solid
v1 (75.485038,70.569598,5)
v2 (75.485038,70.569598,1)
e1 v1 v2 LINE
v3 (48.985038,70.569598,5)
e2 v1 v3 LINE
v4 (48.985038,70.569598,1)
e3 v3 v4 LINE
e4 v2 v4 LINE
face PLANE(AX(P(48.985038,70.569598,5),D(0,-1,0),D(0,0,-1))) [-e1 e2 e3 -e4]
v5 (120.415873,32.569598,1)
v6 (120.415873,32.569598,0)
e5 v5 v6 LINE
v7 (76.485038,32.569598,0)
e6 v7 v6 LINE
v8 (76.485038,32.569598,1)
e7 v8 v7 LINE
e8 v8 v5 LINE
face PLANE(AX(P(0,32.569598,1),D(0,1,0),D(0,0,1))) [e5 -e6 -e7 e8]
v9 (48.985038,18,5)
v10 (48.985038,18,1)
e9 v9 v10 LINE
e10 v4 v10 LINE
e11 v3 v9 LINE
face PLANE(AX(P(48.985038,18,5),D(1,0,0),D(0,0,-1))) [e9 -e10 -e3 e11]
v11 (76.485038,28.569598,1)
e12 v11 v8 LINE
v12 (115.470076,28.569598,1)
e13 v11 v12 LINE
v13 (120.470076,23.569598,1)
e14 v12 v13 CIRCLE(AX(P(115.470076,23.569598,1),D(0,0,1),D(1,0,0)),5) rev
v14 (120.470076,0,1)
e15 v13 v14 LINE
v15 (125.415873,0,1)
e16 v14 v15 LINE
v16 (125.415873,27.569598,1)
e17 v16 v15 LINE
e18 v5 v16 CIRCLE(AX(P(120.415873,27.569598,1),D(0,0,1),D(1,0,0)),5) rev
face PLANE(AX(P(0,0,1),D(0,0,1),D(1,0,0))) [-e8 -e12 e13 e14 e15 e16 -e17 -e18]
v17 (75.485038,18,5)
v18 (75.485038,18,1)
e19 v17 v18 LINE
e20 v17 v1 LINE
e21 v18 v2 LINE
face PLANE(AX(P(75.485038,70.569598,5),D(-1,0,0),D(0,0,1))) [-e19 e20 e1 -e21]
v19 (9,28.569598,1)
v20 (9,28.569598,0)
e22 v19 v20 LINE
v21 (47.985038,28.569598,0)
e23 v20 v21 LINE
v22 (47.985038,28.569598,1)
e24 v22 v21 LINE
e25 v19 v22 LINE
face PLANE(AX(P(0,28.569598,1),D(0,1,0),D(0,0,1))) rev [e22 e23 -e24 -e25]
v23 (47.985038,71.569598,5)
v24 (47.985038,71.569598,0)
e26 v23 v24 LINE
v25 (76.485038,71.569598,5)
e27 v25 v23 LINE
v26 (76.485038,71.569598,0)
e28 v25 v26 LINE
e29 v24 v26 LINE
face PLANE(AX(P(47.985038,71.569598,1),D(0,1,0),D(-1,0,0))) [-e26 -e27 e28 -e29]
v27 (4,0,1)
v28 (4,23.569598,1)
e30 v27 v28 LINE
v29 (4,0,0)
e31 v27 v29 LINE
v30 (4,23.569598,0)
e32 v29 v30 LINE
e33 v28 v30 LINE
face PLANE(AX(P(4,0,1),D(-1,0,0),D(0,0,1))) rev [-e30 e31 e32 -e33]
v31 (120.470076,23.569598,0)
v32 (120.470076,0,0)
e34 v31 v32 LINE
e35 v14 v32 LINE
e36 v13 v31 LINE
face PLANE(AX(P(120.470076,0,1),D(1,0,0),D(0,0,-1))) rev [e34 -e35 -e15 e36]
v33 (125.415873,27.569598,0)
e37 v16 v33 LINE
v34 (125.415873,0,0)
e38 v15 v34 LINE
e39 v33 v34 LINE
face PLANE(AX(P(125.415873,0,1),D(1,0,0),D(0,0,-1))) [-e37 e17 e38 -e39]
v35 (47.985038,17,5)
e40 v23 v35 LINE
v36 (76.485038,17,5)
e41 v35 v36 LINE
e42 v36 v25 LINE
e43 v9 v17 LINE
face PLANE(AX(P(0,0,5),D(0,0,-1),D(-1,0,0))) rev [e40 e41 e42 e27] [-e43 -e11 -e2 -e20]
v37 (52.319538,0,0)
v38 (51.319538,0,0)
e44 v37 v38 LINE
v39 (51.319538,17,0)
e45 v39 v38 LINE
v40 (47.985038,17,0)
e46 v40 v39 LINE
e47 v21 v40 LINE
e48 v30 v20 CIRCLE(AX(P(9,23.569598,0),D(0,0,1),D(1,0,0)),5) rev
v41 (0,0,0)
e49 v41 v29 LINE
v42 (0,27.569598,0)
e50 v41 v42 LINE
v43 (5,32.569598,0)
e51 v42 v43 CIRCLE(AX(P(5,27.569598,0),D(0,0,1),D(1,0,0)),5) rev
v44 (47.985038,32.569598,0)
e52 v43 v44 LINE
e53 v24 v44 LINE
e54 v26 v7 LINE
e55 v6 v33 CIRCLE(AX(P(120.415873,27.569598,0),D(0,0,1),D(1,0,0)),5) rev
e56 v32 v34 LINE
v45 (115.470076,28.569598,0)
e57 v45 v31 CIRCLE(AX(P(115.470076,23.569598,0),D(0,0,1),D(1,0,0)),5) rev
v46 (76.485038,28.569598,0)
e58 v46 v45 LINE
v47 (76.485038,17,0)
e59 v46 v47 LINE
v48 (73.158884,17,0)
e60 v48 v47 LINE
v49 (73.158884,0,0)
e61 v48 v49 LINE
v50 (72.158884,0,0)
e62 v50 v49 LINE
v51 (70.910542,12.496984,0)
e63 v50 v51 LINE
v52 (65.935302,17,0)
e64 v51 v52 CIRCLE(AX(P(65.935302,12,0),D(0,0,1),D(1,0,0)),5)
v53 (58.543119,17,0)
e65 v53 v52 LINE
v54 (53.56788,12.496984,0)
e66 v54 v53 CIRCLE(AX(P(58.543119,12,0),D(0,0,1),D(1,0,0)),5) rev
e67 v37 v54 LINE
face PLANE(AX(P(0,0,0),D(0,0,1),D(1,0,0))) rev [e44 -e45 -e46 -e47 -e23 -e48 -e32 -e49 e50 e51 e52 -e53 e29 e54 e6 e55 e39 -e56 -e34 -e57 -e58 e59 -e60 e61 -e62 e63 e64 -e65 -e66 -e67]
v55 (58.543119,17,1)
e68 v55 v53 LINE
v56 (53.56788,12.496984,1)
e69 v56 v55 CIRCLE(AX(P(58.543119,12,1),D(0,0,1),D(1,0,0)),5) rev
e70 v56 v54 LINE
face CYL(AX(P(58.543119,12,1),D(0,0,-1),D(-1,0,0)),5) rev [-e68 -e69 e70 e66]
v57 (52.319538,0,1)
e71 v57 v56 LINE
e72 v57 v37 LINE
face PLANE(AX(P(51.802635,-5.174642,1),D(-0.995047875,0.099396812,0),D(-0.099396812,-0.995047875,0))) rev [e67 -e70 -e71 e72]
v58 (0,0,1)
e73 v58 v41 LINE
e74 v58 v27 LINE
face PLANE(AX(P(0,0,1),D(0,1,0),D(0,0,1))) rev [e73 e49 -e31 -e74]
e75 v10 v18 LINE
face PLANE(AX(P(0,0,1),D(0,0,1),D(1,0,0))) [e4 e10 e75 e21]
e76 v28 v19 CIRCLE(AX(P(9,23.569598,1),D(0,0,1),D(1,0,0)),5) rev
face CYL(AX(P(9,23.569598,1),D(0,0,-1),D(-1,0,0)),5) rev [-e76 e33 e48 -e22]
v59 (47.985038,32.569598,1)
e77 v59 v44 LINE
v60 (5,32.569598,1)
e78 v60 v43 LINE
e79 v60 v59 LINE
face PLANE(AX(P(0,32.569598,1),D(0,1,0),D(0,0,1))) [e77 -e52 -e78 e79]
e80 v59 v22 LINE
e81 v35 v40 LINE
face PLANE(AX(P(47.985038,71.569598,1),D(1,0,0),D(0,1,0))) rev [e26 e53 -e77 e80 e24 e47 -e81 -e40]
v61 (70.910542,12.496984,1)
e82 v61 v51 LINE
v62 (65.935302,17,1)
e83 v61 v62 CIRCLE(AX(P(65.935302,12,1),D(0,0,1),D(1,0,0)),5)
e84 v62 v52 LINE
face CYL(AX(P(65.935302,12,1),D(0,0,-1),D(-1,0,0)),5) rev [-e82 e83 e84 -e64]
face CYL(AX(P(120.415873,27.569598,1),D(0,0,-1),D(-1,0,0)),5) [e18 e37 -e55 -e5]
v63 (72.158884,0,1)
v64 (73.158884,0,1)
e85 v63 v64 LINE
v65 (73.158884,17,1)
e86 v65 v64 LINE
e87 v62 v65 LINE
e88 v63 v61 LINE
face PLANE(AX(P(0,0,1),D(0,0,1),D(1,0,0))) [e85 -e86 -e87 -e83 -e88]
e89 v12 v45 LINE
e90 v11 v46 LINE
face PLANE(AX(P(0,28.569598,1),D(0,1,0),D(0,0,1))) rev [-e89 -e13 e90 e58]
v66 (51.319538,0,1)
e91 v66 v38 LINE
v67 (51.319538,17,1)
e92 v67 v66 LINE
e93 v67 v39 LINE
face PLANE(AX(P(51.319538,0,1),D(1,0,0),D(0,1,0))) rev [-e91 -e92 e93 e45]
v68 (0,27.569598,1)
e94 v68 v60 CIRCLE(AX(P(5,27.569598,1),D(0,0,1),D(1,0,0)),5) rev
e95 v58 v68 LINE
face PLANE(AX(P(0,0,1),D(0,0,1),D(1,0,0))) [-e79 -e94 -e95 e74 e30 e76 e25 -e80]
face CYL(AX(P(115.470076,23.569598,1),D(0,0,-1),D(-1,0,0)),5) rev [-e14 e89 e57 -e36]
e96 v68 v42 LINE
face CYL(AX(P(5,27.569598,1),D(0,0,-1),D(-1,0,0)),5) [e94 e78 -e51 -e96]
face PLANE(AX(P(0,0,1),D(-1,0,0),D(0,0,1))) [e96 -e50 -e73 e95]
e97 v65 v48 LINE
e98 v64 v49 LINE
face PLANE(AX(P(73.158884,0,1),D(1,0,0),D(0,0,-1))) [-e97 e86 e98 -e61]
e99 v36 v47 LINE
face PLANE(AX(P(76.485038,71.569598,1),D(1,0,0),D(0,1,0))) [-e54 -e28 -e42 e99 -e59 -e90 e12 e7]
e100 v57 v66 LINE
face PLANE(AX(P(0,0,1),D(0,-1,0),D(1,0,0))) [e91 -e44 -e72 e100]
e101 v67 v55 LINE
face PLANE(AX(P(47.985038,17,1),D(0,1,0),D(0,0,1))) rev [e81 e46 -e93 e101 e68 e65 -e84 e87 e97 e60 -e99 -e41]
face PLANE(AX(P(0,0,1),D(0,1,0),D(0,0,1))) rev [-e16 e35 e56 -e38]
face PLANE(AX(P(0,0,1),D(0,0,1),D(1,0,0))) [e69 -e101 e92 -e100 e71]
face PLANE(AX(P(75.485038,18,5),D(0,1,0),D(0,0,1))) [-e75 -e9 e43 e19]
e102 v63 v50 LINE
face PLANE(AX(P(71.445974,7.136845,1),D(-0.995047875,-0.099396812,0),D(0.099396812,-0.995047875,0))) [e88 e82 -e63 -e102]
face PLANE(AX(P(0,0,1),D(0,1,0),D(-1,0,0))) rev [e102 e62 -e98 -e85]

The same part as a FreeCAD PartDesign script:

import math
import FreeCAD as App
import Part
import Sketcher

V = App.Vector

doc = App.newDocument("Part")
body = doc.addObject("PartDesign::Body", "Body")

# Sketch on XY plane
sketch1 = body.newObject("Sketcher::SketchObject", "Sketch")
sketch1.AttachmentSupport = (doc.getObject("XY_Plane"), [""])
sketch1.MapMode = "FlatFace"
sketch1.addGeometry(Part.LineSegment(V(0, 27.6, 0), V(0, 0, 0)), False)
sketch1.addGeometry(Part.LineSegment(V(0, 0, 0), V(4, 0, 0)), False)
sketch1.addGeometry(Part.LineSegment(V(4, 0, 0), V(4, 23.6, 0)), False)
sketch1.addGeometry(Part.ArcOfCircle(Part.Circle(V(9, 23.6, 0), V(0, 0, 1), 5), math.radians(90), math.radians(180)), False)
sketch1.addGeometry(Part.LineSegment(V(9, 28.6, 0), V(48, 28.6, 0)), False)
sketch1.addGeometry(Part.LineSegment(V(48, 28.6, 0), V(48, 17, 0)), False)
sketch1.addGeometry(Part.LineSegment(V(48, 17, 0), V(51.3, 17, 0)), False)
sketch1.addGeometry(Part.LineSegment(V(51.3, 17, 0), V(51.3, 0, 0)), False)
sketch1.addGeometry(Part.LineSegment(V(51.3, 0, 0), V(52.3, 0, 0)), False)
sketch1.addGeometry(Part.LineSegment(V(52.3, 0, 0), V(53.6, 12.5, 0)), False)
sketch1.addGeometry(Part.ArcOfCircle(Part.Circle(V(58.5, 12, 0), V(0, 0, 1), 5), math.radians(90), math.radians(174)), False)
sketch1.addGeometry(Part.LineSegment(V(58.5, 17, 0), V(65.9, 17, 0)), False)
sketch1.addGeometry(Part.ArcOfCircle(Part.Circle(V(65.9, 12, 0), V(0, 0, 1), 5), math.radians(6), math.radians(90)), False)
sketch1.addGeometry(Part.LineSegment(V(70.9, 12.5, 0), V(72.2, 0, 0)), False)
sketch1.addGeometry(Part.LineSegment(V(72.2, 0, 0), V(73.2, 0, 0)), False)
sketch1.addGeometry(Part.LineSegment(V(73.2, 0, 0), V(73.2, 17, 0)), False)
sketch1.addGeometry(Part.LineSegment(V(73.2, 17, 0), V(76.5, 17, 0)), False)
sketch1.addGeometry(Part.LineSegment(V(76.5, 17, 0), V(76.5, 28.6, 0)), False)
sketch1.addGeometry(Part.LineSegment(V(76.5, 28.6, 0), V(115.5, 28.6, 0)), False)
sketch1.addGeometry(Part.ArcOfCircle(Part.Circle(V(115.5, 23.6, 0), V(0, 0, 1), 5), math.radians(0), math.radians(90)), False)
sketch1.addGeometry(Part.LineSegment(V(120.5, 23.6, 0), V(120.5, 0, 0)), False)
sketch1.addGeometry(Part.LineSegment(V(120.5, 0, 0), V(125.4, 0, 0)), False)
sketch1.addGeometry(Part.LineSegment(V(125.4, 0, 0), V(125.4, 27.6, 0)), False)
sketch1.addGeometry(Part.ArcOfCircle(Part.Circle(V(120.4, 27.6, 0), V(0, 0, 1), 5), math.radians(0), math.radians(90)), False)
sketch1.addGeometry(Part.LineSegment(V(120.4, 32.6, 0), V(76.5, 32.6, 0)), False)
sketch1.addGeometry(Part.LineSegment(V(76.5, 32.6, 0), V(76.5, 71.6, 0)), False)
sketch1.addGeometry(Part.LineSegment(V(76.5, 71.6, 0), V(48, 71.6, 0)), False)
sketch1.addGeometry(Part.LineSegment(V(48, 71.6, 0), V(48, 32.6, 0)), False)
sketch1.addGeometry(Part.LineSegment(V(48, 32.6, 0), V(5, 32.6, 0)), False)
sketch1.addGeometry(Part.ArcOfCircle(Part.Circle(V(5, 27.6, 0), V(0, 0, 1), 5), math.radians(90), math.radians(180)), False)
sketch1.addConstraint(Sketcher.Constraint("Coincident", 0, 2, 1, 1))
sketch1.addConstraint(Sketcher.Constraint("Coincident", 1, 2, 2, 1))
sketch1.addConstraint(Sketcher.Constraint("Tangent", 2, 2, 3, 2))
sketch1.addConstraint(Sketcher.Constraint("Tangent", 3, 1, 4, 1))
sketch1.addConstraint(Sketcher.Constraint("Coincident", 4, 2, 5, 1))
sketch1.addConstraint(Sketcher.Constraint("Coincident", 5, 2, 6, 1))
sketch1.addConstraint(Sketcher.Constraint("Coincident", 6, 2, 7, 1))
sketch1.addConstraint(Sketcher.Constraint("Coincident", 7, 2, 8, 1))
sketch1.addConstraint(Sketcher.Constraint("Coincident", 8, 2, 9, 1))
sketch1.addConstraint(Sketcher.Constraint("Tangent", 9, 2, 10, 2))
sketch1.addConstraint(Sketcher.Constraint("Tangent", 10, 1, 11, 1))
sketch1.addConstraint(Sketcher.Constraint("Tangent", 11, 2, 12, 2))
sketch1.addConstraint(Sketcher.Constraint("Tangent", 12, 1, 13, 1))
sketch1.addConstraint(Sketcher.Constraint("Coincident", 13, 2, 14, 1))
sketch1.addConstraint(Sketcher.Constraint("Coincident", 14, 2, 15, 1))
sketch1.addConstraint(Sketcher.Constraint("Coincident", 15, 2, 16, 1))
sketch1.addConstraint(Sketcher.Constraint("Coincident", 16, 2, 17, 1))
sketch1.addConstraint(Sketcher.Constraint("Coincident", 17, 2, 18, 1))
sketch1.addConstraint(Sketcher.Constraint("Tangent", 18, 2, 19, 2))
sketch1.addConstraint(Sketcher.Constraint("Tangent", 19, 1, 20, 1))
sketch1.addConstraint(Sketcher.Constraint("Coincident", 20, 2, 21, 1))
sketch1.addConstraint(Sketcher.Constraint("Coincident", 21, 2, 22, 1))
sketch1.addConstraint(Sketcher.Constraint("Tangent", 22, 2, 23, 1))
sketch1.addConstraint(Sketcher.Constraint("Tangent", 23, 2, 24, 1))
sketch1.addConstraint(Sketcher.Constraint("Coincident", 24, 2, 25, 1))
sketch1.addConstraint(Sketcher.Constraint("Coincident", 25, 2, 26, 1))
sketch1.addConstraint(Sketcher.Constraint("Coincident", 26, 2, 27, 1))
sketch1.addConstraint(Sketcher.Constraint("Coincident", 27, 2, 28, 1))
sketch1.addConstraint(Sketcher.Constraint("Tangent", 28, 2, 29, 1))
sketch1.addConstraint(Sketcher.Constraint("Tangent", 29, 2, 0, 1))
sketch1.addConstraint(Sketcher.Constraint("Vertical", 0))
sketch1.addConstraint(Sketcher.Constraint("Horizontal", 1))
sketch1.addConstraint(Sketcher.Constraint("Vertical", 2))
sketch1.addConstraint(Sketcher.Constraint("Horizontal", 4))
sketch1.addConstraint(Sketcher.Constraint("Vertical", 5))
sketch1.addConstraint(Sketcher.Constraint("Horizontal", 6))
sketch1.addConstraint(Sketcher.Constraint("Vertical", 7))
sketch1.addConstraint(Sketcher.Constraint("Horizontal", 8))
sketch1.addConstraint(Sketcher.Constraint("Horizontal", 11))
sketch1.addConstraint(Sketcher.Constraint("Horizontal", 14))
sketch1.addConstraint(Sketcher.Constraint("Vertical", 15))
sketch1.addConstraint(Sketcher.Constraint("Horizontal", 16))
sketch1.addConstraint(Sketcher.Constraint("Vertical", 17))
sketch1.addConstraint(Sketcher.Constraint("Horizontal", 18))
sketch1.addConstraint(Sketcher.Constraint("Vertical", 20))
sketch1.addConstraint(Sketcher.Constraint("Horizontal", 21))
sketch1.addConstraint(Sketcher.Constraint("Vertical", 22))
sketch1.addConstraint(Sketcher.Constraint("Horizontal", 24))
sketch1.addConstraint(Sketcher.Constraint("Vertical", 25))
sketch1.addConstraint(Sketcher.Constraint("Horizontal", 26))
sketch1.addConstraint(Sketcher.Constraint("Vertical", 27))
sketch1.addConstraint(Sketcher.Constraint("Horizontal", 28))
sketch1.addConstraint(Sketcher.Constraint("Coincident", 0, 2, -1, 1))
sketch1.addConstraint(Sketcher.Constraint("Equal", 3, 10))
sketch1.addConstraint(Sketcher.Constraint("Equal", 10, 12))
sketch1.addConstraint(Sketcher.Constraint("Equal", 12, 19))
sketch1.addConstraint(Sketcher.Constraint("Equal", 19, 23))
sketch1.addConstraint(Sketcher.Constraint("Equal", 23, 29))
sketch1.addConstraint(Sketcher.Constraint("PointOnObject", 7, 2, -1))
sketch1.addConstraint(Sketcher.Constraint("PointOnObject", 13, 2, -1))
sketch1.addConstraint(Sketcher.Constraint("PointOnObject", 20, 2, -1))
sketch1.addConstraint(Sketcher.Constraint("Horizontal", 3, 3, 19, 3))
sketch1.addConstraint(Sketcher.Constraint("Horizontal", 23, 3, 29, 3))
sketch1.addConstraint(Sketcher.Constraint("Horizontal", 6, 2, 10, 1))
sketch1.addConstraint(Sketcher.Constraint("Horizontal", 9, 2, 12, 1))
sketch1.addConstraint(Sketcher.Constraint("Horizontal", 11, 2, 15, 2))
sketch1.addConstraint(Sketcher.Constraint("Vertical", 17, 2, 24, 2))
sketch1.addConstraint(Sketcher.Constraint("Vertical", 5, 2, 26, 2))
sketch1.addConstraint(Sketcher.Constraint("Equal", 8, 14))
sketch1.addConstraint(Sketcher.Constraint("Equal", 4, 18))
sketch1.addConstraint(Sketcher.Constraint("Radius", 3, 5.0))
sketch1.addConstraint(Sketcher.Constraint("DistanceX", 1, 1, 1, 2, 4.0))
sketch1.addConstraint(Sketcher.Constraint("DistanceX", 8, 1, 8, 2, 1.0))
sketch1.addConstraint(Sketcher.Constraint("DistanceY", 7, 2, 7, 1, 17.0))
sketch1.addConstraint(Sketcher.Constraint("DistanceY", 25, 1, 25, 2, 39.0))
sketch1.addConstraint(Sketcher.Constraint("DistanceX", 26, 2, 26, 1, 28.5))
sketch1.addConstraint(Sketcher.Constraint("DistanceY", 19, 3, 23, 3, 4.0))
sketch1.addConstraint(Sketcher.Constraint("DistanceX", 6, 1, 6, 2, 3.334499))
sketch1.addConstraint(Sketcher.Constraint("DistanceX", 4, 1, 4, 2, 38.985038))
sketch1.addConstraint(Sketcher.Constraint("Distance", 9, 12.559179))
sketch1.addConstraint(Sketcher.Constraint("DistanceX", 11, 1, 11, 2, 7.392183))
sketch1.addConstraint(Sketcher.Constraint("DistanceX", 21, 1, 21, 2, 4.945797))
sketch1.addConstraint(Sketcher.Constraint("DistanceY", 0, 2, 0, 1, 27.569598))
pad1 = body.newObject("PartDesign::Pad", "Pad")
pad1.Profile = sketch1
pad1.Length = 1

# Sketch on XY plane
sketch2 = body.newObject("Sketcher::SketchObject", "Sketch001")
sketch2.AttachmentSupport = (doc.getObject("XY_Plane"), [""])
sketch2.MapMode = "FlatFace"
sketch2.AttachmentOffset = App.Placement(V(0, 0, 1), App.Rotation())
sketch2.addGeometry(Part.LineSegment(V(48, 72, 0), V(48, 17, 0)), False)
sketch2.addGeometry(Part.LineSegment(V(48, 17, 0), V(76, 17, 0)), False)
sketch2.addGeometry(Part.LineSegment(V(76, 17, 0), V(76, 72, 0)), False)
sketch2.addGeometry(Part.LineSegment(V(76, 72, 0), V(48, 72, 0)), False)
sketch2.addGeometry(Part.LineSegment(V(75, 18, 0), V(49, 18, 0)), False)
sketch2.addGeometry(Part.LineSegment(V(49, 18, 0), V(49, 71, 0)), False)
sketch2.addGeometry(Part.LineSegment(V(49, 71, 0), V(75, 71, 0)), False)
sketch2.addGeometry(Part.LineSegment(V(75, 71, 0), V(75, 18, 0)), False)
sketch2.addConstraint(Sketcher.Constraint("Coincident", 0, 2, 1, 1))
sketch2.addConstraint(Sketcher.Constraint("Coincident", 1, 2, 2, 1))
sketch2.addConstraint(Sketcher.Constraint("Coincident", 2, 2, 3, 1))
sketch2.addConstraint(Sketcher.Constraint("Coincident", 3, 2, 0, 1))
sketch2.addConstraint(Sketcher.Constraint("Coincident", 4, 2, 5, 1))
sketch2.addConstraint(Sketcher.Constraint("Coincident", 5, 2, 6, 1))
sketch2.addConstraint(Sketcher.Constraint("Coincident", 6, 2, 7, 1))
sketch2.addConstraint(Sketcher.Constraint("Coincident", 7, 2, 4, 1))
sketch2.addConstraint(Sketcher.Constraint("Vertical", 0))
sketch2.addConstraint(Sketcher.Constraint("Horizontal", 1))
sketch2.addConstraint(Sketcher.Constraint("Vertical", 2))
sketch2.addConstraint(Sketcher.Constraint("Horizontal", 3))
sketch2.addConstraint(Sketcher.Constraint("Horizontal", 4))
sketch2.addConstraint(Sketcher.Constraint("Vertical", 5))
sketch2.addConstraint(Sketcher.Constraint("Horizontal", 6))
sketch2.addConstraint(Sketcher.Constraint("Vertical", 7))
sketch2.addConstraint(Sketcher.Constraint("DistanceX", 1, 1, 1, 2, 28.5))
sketch2.addConstraint(Sketcher.Constraint("DistanceX", 4, 2, 4, 1, 26.5))
sketch2.addConstraint(Sketcher.Constraint("DistanceY", -1, 1, 0, 2, 17.0))
sketch2.addConstraint(Sketcher.Constraint("DistanceY", -1, 1, 4, 2, 18.0))
sketch2.addConstraint(Sketcher.Constraint("DistanceX", 0, 2, 4, 2, 1.0))
sketch2.addConstraint(Sketcher.Constraint("DistanceY", 5, 2, 3, 2, 1.0))
sketch2.addConstraint(Sketcher.Constraint("DistanceY", 0, 2, 0, 1, 54.569598))
sketch2.addConstraint(Sketcher.Constraint("DistanceX", -1, 1, 0, 2, 47.985038))
pad2 = body.newObject("PartDesign::Pad", "Pad001")
pad2.Profile = sketch2
pad2.Length = 4

doc.recompute()
